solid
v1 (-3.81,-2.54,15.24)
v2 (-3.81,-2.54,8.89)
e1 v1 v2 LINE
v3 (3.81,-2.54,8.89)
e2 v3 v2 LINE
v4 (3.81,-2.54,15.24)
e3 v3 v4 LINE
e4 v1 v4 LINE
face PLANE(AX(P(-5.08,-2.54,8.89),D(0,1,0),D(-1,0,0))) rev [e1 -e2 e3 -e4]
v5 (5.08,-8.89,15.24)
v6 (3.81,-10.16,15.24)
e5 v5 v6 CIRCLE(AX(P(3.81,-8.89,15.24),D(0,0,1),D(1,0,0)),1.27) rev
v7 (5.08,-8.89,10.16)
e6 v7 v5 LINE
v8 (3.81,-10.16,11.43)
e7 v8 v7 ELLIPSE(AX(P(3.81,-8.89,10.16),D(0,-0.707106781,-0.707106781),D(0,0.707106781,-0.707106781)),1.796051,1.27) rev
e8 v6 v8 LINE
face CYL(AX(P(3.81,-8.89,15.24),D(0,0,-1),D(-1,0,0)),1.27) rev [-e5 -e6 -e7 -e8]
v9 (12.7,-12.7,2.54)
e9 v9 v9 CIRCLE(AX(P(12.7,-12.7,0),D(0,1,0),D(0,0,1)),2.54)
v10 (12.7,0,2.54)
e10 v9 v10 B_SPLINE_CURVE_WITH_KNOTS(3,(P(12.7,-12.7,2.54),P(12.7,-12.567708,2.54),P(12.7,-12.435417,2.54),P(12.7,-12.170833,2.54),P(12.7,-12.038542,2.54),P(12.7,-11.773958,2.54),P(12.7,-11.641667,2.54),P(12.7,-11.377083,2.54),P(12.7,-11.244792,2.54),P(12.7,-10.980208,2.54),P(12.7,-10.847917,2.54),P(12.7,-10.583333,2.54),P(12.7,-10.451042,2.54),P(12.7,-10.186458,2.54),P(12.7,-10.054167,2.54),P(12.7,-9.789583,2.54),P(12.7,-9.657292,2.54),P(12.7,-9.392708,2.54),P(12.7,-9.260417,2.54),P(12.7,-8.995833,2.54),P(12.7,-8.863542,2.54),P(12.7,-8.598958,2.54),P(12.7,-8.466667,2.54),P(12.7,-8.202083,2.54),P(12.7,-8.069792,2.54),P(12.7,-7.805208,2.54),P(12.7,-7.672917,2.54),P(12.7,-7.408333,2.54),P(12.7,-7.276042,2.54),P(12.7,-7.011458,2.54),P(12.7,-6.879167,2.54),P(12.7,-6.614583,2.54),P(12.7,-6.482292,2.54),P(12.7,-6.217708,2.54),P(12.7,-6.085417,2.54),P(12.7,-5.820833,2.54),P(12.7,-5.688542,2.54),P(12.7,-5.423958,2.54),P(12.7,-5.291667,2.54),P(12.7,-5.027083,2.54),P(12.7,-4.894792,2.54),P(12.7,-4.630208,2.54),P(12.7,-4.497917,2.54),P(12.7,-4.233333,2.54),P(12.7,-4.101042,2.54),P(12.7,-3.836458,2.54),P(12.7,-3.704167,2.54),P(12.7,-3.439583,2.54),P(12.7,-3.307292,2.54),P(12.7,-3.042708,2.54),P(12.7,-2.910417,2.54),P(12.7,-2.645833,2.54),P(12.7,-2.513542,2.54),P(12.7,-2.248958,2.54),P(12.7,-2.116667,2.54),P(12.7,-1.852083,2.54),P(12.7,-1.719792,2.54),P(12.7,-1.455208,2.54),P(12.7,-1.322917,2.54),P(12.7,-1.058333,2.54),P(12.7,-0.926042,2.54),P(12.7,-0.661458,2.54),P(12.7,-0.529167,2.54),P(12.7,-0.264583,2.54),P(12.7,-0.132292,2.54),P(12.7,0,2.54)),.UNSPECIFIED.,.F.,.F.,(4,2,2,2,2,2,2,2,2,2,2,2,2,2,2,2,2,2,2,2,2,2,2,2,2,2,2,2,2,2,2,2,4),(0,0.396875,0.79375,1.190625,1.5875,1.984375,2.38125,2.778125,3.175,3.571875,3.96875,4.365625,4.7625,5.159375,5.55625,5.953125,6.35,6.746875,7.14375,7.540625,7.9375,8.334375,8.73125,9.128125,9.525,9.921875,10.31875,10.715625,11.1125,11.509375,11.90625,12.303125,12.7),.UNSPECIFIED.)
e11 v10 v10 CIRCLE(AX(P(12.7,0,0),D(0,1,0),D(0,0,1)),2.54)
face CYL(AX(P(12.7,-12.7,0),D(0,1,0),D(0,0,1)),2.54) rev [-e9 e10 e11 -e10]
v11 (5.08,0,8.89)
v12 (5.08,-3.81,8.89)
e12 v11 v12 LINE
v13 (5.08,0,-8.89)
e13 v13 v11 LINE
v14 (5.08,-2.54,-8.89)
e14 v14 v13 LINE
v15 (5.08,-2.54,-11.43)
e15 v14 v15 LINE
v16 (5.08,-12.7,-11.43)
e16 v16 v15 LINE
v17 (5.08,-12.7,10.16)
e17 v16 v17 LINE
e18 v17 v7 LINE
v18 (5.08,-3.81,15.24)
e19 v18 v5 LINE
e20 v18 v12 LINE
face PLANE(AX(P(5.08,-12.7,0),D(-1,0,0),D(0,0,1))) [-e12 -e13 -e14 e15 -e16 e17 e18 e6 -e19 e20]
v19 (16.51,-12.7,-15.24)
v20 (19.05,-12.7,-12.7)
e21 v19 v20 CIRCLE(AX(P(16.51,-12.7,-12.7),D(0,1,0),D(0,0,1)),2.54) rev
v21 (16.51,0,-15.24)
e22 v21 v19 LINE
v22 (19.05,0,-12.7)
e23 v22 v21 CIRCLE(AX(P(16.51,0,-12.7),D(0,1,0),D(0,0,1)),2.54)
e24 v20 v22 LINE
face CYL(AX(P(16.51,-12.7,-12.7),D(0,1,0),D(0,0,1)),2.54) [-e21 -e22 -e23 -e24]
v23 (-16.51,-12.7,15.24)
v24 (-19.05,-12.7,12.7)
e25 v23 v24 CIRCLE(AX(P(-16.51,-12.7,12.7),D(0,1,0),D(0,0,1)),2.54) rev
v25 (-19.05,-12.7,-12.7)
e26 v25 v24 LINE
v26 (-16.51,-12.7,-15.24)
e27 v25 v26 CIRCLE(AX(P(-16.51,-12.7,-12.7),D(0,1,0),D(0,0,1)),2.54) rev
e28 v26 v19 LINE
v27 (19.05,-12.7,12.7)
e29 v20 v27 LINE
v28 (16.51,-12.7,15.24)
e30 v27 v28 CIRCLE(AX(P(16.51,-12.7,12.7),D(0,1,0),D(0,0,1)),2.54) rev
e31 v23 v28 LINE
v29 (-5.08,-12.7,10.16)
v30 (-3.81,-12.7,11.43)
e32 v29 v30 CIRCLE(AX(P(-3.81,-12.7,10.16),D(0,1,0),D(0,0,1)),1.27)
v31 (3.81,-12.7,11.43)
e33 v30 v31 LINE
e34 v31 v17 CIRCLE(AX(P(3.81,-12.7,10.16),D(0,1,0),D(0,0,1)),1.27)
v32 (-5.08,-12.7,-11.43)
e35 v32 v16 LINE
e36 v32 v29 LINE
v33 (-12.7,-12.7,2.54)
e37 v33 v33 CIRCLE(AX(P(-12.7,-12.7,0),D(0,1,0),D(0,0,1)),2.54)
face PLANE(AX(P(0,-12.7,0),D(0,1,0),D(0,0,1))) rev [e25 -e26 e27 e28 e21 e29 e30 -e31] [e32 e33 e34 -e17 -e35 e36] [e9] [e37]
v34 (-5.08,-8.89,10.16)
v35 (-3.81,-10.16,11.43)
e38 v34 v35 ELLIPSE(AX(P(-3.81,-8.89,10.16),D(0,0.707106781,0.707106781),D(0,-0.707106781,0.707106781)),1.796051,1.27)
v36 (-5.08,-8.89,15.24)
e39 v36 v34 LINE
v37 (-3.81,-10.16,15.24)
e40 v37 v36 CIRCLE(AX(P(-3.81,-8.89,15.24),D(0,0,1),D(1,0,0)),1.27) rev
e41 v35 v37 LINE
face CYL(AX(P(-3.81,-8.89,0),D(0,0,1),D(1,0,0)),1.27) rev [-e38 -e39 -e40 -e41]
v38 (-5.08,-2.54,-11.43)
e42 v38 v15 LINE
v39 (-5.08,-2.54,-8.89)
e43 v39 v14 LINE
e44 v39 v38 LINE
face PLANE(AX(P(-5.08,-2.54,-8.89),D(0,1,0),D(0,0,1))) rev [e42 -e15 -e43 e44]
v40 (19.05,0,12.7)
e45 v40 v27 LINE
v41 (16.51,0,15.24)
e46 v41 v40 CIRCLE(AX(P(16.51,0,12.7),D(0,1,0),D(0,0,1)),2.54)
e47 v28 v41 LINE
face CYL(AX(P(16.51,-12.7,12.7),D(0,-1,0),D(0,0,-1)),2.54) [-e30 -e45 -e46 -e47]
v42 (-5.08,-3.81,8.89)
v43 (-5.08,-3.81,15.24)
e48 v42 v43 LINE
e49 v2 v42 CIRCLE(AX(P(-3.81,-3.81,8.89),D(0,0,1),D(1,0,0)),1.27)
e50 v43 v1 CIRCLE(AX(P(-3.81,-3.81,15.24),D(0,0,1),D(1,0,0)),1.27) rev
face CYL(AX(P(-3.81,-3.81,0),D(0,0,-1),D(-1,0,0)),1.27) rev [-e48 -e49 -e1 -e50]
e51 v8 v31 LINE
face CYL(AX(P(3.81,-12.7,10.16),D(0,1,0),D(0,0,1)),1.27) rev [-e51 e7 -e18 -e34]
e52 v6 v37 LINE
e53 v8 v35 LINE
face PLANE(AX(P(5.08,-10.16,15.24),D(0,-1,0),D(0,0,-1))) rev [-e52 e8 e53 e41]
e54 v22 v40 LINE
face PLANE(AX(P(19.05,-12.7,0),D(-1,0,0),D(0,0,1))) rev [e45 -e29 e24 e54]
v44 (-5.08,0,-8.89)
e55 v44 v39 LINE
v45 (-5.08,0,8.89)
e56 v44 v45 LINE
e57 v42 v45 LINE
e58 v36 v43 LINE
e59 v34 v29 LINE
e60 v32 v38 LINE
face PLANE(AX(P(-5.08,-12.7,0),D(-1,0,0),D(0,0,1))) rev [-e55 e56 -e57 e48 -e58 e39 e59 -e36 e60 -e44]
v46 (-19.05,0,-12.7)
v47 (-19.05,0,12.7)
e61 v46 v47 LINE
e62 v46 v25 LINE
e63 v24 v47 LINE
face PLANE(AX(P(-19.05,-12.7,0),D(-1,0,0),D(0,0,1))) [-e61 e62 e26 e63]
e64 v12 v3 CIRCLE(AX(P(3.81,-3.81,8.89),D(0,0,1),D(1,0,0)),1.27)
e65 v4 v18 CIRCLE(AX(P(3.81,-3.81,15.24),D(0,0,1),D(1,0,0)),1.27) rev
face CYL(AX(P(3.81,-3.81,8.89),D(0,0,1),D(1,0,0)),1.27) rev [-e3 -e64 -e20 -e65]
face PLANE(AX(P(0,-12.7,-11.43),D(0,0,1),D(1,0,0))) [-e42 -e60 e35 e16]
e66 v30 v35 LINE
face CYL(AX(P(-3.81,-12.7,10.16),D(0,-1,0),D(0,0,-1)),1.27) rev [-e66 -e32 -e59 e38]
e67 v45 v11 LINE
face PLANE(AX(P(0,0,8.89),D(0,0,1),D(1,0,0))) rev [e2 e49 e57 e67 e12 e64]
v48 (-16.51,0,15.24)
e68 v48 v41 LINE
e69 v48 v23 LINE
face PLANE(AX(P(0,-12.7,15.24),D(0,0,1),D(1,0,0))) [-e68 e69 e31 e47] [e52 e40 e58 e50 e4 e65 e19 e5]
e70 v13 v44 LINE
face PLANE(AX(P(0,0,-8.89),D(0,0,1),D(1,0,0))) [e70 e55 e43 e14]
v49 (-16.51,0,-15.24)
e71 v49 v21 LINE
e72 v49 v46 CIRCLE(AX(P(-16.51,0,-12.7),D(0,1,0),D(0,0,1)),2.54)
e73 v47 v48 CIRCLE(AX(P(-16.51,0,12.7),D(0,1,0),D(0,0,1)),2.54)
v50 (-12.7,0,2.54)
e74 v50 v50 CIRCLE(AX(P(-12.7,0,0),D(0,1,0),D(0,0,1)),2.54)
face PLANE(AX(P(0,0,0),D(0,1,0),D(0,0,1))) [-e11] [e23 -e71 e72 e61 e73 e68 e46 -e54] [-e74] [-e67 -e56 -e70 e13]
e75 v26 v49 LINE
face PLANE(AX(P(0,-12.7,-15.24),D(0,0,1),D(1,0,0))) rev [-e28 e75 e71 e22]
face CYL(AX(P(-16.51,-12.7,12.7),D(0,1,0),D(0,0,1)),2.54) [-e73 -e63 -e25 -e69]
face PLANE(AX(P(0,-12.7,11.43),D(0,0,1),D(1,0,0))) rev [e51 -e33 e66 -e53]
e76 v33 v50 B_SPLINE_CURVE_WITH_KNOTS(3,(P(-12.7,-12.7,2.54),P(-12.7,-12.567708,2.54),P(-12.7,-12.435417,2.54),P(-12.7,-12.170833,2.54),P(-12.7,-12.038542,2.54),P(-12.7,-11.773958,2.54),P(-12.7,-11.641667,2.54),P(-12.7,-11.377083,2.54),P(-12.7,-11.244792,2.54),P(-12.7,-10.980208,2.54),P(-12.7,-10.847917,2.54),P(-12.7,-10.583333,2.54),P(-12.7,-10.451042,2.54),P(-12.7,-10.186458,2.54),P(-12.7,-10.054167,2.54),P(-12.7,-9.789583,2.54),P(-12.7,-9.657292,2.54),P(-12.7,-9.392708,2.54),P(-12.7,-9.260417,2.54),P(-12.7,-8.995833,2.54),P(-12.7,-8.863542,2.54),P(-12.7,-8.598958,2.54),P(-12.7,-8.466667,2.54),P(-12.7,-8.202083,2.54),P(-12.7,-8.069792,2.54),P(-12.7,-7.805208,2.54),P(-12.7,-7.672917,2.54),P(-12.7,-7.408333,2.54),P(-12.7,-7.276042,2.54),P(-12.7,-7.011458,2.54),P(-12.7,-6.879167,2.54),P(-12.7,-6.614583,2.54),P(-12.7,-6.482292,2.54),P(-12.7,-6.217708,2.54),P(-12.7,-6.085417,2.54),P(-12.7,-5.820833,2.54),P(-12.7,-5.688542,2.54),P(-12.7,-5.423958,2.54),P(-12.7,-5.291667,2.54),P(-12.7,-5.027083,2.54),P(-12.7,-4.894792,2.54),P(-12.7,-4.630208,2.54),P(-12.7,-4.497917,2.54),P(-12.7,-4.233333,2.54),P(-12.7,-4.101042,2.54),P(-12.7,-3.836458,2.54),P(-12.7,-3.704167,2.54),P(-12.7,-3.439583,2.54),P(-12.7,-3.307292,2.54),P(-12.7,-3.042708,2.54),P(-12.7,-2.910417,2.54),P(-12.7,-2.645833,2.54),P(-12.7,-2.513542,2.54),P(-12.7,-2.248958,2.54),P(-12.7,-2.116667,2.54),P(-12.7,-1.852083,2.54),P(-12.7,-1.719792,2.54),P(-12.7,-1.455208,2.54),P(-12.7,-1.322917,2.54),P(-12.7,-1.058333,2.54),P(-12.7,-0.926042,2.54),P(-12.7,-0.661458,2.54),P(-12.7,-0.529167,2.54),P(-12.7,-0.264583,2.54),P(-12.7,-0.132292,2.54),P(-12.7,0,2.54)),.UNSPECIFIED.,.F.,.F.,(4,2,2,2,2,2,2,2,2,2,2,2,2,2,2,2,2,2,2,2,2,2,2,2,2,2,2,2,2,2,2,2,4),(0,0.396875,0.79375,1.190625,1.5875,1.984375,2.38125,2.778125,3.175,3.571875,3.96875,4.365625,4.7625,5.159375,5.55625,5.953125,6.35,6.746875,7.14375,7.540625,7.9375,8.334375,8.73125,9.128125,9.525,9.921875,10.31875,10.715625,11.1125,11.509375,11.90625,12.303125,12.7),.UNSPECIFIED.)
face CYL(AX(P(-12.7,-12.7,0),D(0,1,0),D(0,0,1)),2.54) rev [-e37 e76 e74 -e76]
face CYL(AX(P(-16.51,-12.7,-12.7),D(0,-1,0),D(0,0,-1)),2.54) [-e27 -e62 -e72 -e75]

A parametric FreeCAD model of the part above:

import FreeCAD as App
import Part
import Sketcher
Q = App.Units.Quantity


def edges_at(feature, points):
    """Names of the edges that pass closest to the given points."""
    edges = feature.Shape.Edges
    near = lambda p: min(range(len(edges)), key=lambda i: edges[i].distToShape(Part.Vertex(*p))[0])
    return sorted({f"Edge{near(p) + 1}" for p in points})


def add_polygon(sketch, points):
    """Adds a closed chain of lines whose ends are joined by coincident constraints."""
    first, n = sketch.GeometryCount, len(points)
    for a, b in zip(points, points[1:] + points[:1]):
        sketch.addGeometry(Part.LineSegment(App.Vector(*a, 0), App.Vector(*b, 0)), False)
    for i in range(n):
        sketch.addConstraint(Sketcher.Constraint("Coincident", first + i, 2, first + (i + 1) % n, 1))

doc = App.newDocument("Part")
body = doc.addObject("PartDesign::Body", "Body")

sketch1 = body.newObject("Sketcher::SketchObject", "Sketch")
sketch1.AttachmentSupport = (doc.getObject("XZ_Plane"), [""])
sketch1.MapMode = "FlatFace"
add_polygon(sketch1, [(-19.1, -15.2), (-19.1, 15.2), (19.1, 15.2), (19.1, -15.2)])
sketch1.addGeometry(Part.Circle(App.Vector(-12.7, 0, 0), App.Vector(0, 0, 1), 2.5), False)
add_polygon(sketch1, [(5.1, 11.4), (-5.1, 11.4), (-5.1, -11.4), (5.1, -11.4)])
sketch1.addGeometry(Part.Circle(App.Vector(12.7, 0, 0), App.Vector(0, 0, 1), 2.5), False)
sketch1.addConstraint([
    Sketcher.Constraint("Vertical", 0),
    Sketcher.Constraint("Horizontal", 1),
    Sketcher.Constraint("Vertical", 2),
    Sketcher.Constraint("Horizontal", 3),
    Sketcher.Constraint("Horizontal", 5),
    Sketcher.Constraint("Vertical", 6),
    Sketcher.Constraint("Horizontal", 7),
    Sketcher.Constraint("Vertical", 8),
    Sketcher.Constraint("Equal", 4, 9),
    Sketcher.Constraint("Symmetric", 4, 3, 9, 3, -1, 1),
    Sketcher.Constraint("Symmetric", 0, 2, 2, 2, -1, 1),
    Sketcher.Constraint("Symmetric", 5, 2, 7, 2, -1, 1),
    Sketcher.Constraint("PointOnObject", 4, 3, -1),
    Sketcher.Constraint("Diameter", 4, Q("0.2 in")),
    Sketcher.Constraint("DistanceX", 1, 1, 1, 2, Q("1.5 in")),
    Sketcher.Constraint("DistanceX", 5, 2, 5, 1, Q("0.4 in")),
    Sketcher.Constraint("DistanceY", 0, 1, 0, 2, Q("1.2 in")),
    Sketcher.Constraint("DistanceY", 6, 2, 6, 1, Q("0.9 in")),
    Sketcher.Constraint("DistanceX", 4, 3, 9, 3, Q("1 in")),
])
pad1 = body.newObject("PartDesign::Pad", "Pad")
pad1.Profile = sketch1
pad1.Length = Q("0.5 in")

sketch2 = body.newObject("Sketcher::SketchObject", "Sketch001")
sketch2.AttachmentSupport = (doc.getObject("XY_Plane"), [""])
sketch2.MapMode = "FlatFace"
sketch2.AttachmentOffset = App.Placement(App.Vector(0, 0, -0.45 * 25.4), App.Rotation())
add_polygon(sketch2, [(-5.1, 0), (-5.1, -2.5), (5.1, -2.5), (5.1, 0)])
sketch2.addConstraint([
    Sketcher.Constraint("Vertical", 0),
    Sketcher.Constraint("Horizontal", 1),
    Sketcher.Constraint("Vertical", 2),
    Sketcher.Constraint("Horizontal", 3),
    Sketcher.Constraint("Symmetric", 2, 2, 3, 2, -1, 1),
    Sketcher.Constraint("DistanceX", 1, 1, 1, 2, Q("0.4 in")),
    Sketcher.Constraint("DistanceY", 0, 2, 0, 1, Q("0.1 in")),
])
pad2 = body.newObject("PartDesign::Pad", "Pad001")
pad2.Profile = sketch2
pad2.Length = Q("0.1 in")

sketch3 = body.newObject("Sketcher::SketchObject", "Sketch002")
sketch3.AttachmentSupport = (doc.getObject("XY_Plane"), [""])
sketch3.MapMode = "FlatFace"
sketch3.AttachmentOffset = App.Placement(App.Vector(0, 0, 0.45 * 25.4), App.Rotation())
add_polygon(sketch3, [(5.1, 0), (5.1, -2.5), (-5.1, -2.5), (-5.1, 0)])
sketch3.addConstraint([
    Sketcher.Constraint("Vertical", 0),
    Sketcher.Constraint("Horizontal", 1),
    Sketcher.Constraint("Vertical", 2),
    Sketcher.Constraint("Horizontal", 3),
    Sketcher.Constraint("Symmetric", 2, 2, 3, 2, -1, 1),
    Sketcher.Constraint("DistanceX", 1, 2, 1, 1, Q("0.4 in")),
    Sketcher.Constraint("DistanceY", 0, 2, 0, 1, Q("0.1 in")),
])
pad3 = body.newObject("PartDesign::Pad", "Pad002")
pad3.Profile = sketch3
pad3.Length = Q("0.1 in")
pad3.Reversed = True
doc.recompute()

fillet = body.newObject("PartDesign::Fillet", "Fillet")
fillet.Base = (pad3, edges_at(pad3, [
    (19.05, -6.35, 15.24),
    (-19.05, -6.35, 15.24),
    (-19.05, -6.35, -15.24),
    (19.05, -6.35, -15.24),
]))
fillet.Radius = Q("0.1 in")

sketch4 = body.newObject("Sketcher::SketchObject", "Sketch003")
sketch4.AttachmentSupport = (doc.getObject("XY_Plane"), [""])
sketch4.MapMode = "FlatFace"
sketch4.AttachmentOffset = App.Placement(App.Vector(0, 0, 0.45 * 25.4), App.Rotation())
add_polygon(sketch4, [(5, -3), (5, -10), (-5, -10), (-5, -3)])
sketch4.addConstraint([
    Sketcher.Constraint("Vertical", 0),
    Sketcher.Constraint("Horizontal", 1),
    Sketcher.Constraint("Vertical", 2),
    Sketcher.Constraint("Horizontal", 3),
    Sketcher.Constraint("DistanceX", 1, 2, 1, 1, Q("0.4 in")),
    Sketcher.Constraint("DistanceY", 0, 2, 0, 1, Q("0.3 in")),
    Sketcher.Constraint("DistanceX", -1, 1, 0, 2, Q("0.2 in")),
    Sketcher.Constraint("DistanceY", 0, 2, -1, 1, Q("0.4 in")),
])
pocket1 = body.newObject("PartDesign::Pocket", "Pocket")
pocket1.Profile = sketch4
pocket1.Type = "ThroughAll"
pocket1.Reversed = True
doc.recompute()

fillet2 = body.newObject("PartDesign::Fillet", "Fillet001")
fillet2.Base = (pocket1, edges_at(pocket1, [
    (-5.08, -11.43, 11.43),
    (5.08, -11.43, 11.43),
    (-5.08, -2.54, 12.065),
    (5.08, -2.54, 12.065),
    (5.08, -10.16, 13.335),
    (-5.08, -10.16, 13.335),
]))
fillet2.Radius = Q("0.05 in")

doc.recompute()
